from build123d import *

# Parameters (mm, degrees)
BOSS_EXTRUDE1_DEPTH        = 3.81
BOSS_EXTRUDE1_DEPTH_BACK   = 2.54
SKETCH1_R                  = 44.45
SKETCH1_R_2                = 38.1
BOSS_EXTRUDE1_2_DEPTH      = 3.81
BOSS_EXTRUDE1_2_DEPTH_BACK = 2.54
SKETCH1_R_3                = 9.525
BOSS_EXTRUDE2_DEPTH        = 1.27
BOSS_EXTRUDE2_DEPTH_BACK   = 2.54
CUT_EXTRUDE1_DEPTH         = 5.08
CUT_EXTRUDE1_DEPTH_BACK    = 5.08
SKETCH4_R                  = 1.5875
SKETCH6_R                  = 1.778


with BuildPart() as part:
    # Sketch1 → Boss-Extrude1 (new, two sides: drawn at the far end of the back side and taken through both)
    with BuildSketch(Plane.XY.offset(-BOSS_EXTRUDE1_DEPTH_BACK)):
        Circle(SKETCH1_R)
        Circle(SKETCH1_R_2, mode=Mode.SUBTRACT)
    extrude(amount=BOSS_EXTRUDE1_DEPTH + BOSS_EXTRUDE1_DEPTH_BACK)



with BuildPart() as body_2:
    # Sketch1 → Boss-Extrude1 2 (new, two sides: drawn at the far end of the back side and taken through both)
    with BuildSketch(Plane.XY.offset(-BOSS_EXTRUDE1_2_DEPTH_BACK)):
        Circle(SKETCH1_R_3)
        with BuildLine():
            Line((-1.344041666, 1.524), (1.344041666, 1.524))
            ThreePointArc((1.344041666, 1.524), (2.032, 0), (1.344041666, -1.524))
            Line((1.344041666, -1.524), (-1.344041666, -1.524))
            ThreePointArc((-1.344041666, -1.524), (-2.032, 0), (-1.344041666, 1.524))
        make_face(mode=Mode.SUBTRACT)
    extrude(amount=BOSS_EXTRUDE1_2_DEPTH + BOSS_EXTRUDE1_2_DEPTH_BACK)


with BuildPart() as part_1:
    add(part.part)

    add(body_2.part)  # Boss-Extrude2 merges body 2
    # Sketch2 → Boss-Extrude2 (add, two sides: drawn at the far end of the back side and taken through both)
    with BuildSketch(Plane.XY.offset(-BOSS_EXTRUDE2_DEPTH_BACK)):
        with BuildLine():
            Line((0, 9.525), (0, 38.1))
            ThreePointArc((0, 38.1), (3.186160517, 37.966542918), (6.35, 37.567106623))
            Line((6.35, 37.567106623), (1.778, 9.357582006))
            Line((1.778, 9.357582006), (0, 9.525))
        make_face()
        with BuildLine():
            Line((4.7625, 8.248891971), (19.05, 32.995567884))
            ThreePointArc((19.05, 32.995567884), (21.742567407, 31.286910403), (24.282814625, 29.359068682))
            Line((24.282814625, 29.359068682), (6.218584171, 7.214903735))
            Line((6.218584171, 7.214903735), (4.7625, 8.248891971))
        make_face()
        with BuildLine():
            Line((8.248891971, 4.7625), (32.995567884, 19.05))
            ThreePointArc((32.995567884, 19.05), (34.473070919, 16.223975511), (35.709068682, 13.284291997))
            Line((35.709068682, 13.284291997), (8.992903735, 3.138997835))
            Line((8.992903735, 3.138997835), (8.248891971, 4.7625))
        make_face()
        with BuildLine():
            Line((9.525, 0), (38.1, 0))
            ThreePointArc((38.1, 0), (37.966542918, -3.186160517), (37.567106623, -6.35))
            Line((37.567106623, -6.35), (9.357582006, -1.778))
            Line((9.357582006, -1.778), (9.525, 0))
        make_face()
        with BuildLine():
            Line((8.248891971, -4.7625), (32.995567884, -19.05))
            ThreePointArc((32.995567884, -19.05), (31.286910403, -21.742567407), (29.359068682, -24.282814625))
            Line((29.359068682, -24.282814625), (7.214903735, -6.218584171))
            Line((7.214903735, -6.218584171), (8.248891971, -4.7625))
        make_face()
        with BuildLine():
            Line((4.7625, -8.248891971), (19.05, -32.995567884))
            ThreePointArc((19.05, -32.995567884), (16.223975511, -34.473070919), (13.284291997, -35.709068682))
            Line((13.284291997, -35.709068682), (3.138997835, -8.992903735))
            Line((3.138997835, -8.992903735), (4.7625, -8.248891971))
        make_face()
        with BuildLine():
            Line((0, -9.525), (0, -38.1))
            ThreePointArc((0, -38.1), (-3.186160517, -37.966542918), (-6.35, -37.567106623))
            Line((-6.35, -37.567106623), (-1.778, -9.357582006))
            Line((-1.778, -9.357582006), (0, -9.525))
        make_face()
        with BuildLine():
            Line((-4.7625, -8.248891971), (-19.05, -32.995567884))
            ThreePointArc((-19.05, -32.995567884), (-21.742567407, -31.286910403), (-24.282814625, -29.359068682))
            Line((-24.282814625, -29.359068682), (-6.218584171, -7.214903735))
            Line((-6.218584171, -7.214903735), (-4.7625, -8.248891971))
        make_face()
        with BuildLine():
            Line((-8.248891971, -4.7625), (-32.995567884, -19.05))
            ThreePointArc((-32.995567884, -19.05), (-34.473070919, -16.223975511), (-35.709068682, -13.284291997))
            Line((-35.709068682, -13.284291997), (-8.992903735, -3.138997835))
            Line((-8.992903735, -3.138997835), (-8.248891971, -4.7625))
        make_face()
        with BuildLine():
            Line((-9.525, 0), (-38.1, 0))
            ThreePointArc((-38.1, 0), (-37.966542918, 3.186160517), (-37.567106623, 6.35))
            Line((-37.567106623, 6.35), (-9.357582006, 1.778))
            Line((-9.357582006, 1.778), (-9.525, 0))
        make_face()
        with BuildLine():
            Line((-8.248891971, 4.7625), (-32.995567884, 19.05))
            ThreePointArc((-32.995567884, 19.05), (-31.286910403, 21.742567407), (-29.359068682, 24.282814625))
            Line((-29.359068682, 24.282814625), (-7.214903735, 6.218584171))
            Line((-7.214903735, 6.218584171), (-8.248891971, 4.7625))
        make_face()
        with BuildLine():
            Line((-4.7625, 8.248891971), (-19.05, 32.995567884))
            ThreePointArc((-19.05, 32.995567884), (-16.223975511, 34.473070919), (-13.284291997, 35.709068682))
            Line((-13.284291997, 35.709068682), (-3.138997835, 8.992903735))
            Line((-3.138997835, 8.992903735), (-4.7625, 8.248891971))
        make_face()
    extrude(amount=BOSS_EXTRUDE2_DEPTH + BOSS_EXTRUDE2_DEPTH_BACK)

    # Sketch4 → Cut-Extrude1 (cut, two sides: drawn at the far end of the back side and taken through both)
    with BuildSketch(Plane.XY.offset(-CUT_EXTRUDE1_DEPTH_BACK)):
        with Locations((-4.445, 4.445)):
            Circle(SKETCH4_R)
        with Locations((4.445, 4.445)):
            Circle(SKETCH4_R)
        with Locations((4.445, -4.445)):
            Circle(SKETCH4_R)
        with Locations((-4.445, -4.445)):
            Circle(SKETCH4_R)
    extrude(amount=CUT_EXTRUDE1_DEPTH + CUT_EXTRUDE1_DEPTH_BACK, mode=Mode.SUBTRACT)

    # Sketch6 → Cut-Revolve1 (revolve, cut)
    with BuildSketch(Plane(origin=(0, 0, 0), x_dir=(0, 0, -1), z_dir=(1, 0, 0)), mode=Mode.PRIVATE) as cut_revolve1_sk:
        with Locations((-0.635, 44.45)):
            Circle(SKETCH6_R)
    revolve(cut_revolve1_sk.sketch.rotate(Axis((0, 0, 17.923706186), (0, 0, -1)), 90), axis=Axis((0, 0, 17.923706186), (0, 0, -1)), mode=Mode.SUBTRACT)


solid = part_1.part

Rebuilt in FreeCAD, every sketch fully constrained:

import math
import FreeCAD as App
import Part
import Sketcher
Q = App.Units.Quantity

doc = App.newDocument("Part")
params = doc.addObject("Spreadsheet::Sheet", "Params")
for row, (alias, value) in enumerate([
    ("sketch1_diameter", "3 in"),
    ("sketch1_diameter2", "3.5 in"),
    ("pad1_length", "0.15 in"),
    ("pad1_length2", "0.1 in"),
    ("sketch2_diameter", "0.75 in"),
    ("sketch2_radius", "0.08 in"),
    ("pad2_length", "0.15 in"),
    ("pad2_length2", "0.1 in"),
    ("sketch3_radius", "1.5 in"),
    ("sketch3_width", "1.125 in"),
    ("sketch3_length", "1.125 in"),
    ("pad3_length", "0.05 in"),
    ("pad3_length2", "0.1 in"),
    ("sketch4_diameter", "0.125 in"),
    ("sketch5_diameter", "0.14 in"),
    ("groove_angle", "360 deg"),
], start=1):
    params.set(f"A{row}", alias)
    params.set(f"B{row}", "=" + value)
    params.setAlias(f"B{row}", alias)

body = doc.addObject("PartDesign::Body", "Body")

sketch1 = body.newObject("Sketcher::SketchObject", "Sketch")
sketch1.AttachmentSupport = (doc.getObject("XY_Plane"), [""])
sketch1.MapMode = "FlatFace"
sketch1.addGeometry([
    Part.Circle(App.Vector(0, 0, 0), App.Vector(0, 0, 1), 44.45),
    Part.Circle(App.Vector(0, 0, 0), App.Vector(0, 0, 1), 38.1),
], False)
sketch1.addConstraint([
    Sketcher.Constraint("Coincident", 0, 3, -1, 1),
    Sketcher.Constraint("Coincident", 1, 3, -1, 1),
    Sketcher.Constraint("Diameter", 1, Q("3 in")),
    Sketcher.Constraint("Diameter", 0, Q("3.5 in")),
])
sketch1.setExpression("Constraints[2]", "Params.sketch1_diameter")
sketch1.setExpression("Constraints[3]", "Params.sketch1_diameter2")
pad1 = body.newObject("PartDesign::Pad", "Pad")
pad1.Profile = sketch1
pad1.Type = "TwoLengths"
pad1.setExpression("Length", "Params.pad1_length")
pad1.setExpression("Length2", "Params.pad1_length2")
body2 = doc.addObject("PartDesign::Body", "Body001")

sketch2 = body2.newObject("Sketcher::SketchObject", "Sketch001")
sketch2.AttachmentSupport = (doc.getObject("XY_Plane001"), [""])
sketch2.MapMode = "FlatFace"
sketch2.addGeometry([
    Part.Circle(App.Vector(0, 0, 0), App.Vector(0, 0, 1), 9.525),
    Part.ArcOfCircle(Part.Circle(App.Vector(0, 0, 0), App.Vector(0, 0, 1), 2.032), math.radians(131.409622), math.radians(228.590378)),
    Part.LineSegment(App.Vector(-1.344042, 1.524, 0), App.Vector(1.344042, 1.524, 0)),
    Part.ArcOfCircle(Part.Circle(App.Vector(0, 0, 0), App.Vector(0, 0, 1), 2.032), math.radians(-48.590378), math.radians(48.590378)),
    Part.LineSegment(App.Vector(1.344042, -1.524, 0), App.Vector(-1.344042, -1.524, 0)),
], False)
sketch2.addConstraint([
    Sketcher.Constraint("Coincident", 1, 1, 2, 1),
    Sketcher.Constraint("Coincident", 2, 2, 3, 2),
    Sketcher.Constraint("Coincident", 3, 1, 4, 1),
    Sketcher.Constraint("Coincident", 4, 2, 1, 2),
    Sketcher.Constraint("Horizontal", 2),
    Sketcher.Constraint("Horizontal", 4),
    Sketcher.Constraint("Coincident", 0, 3, -1, 1),
    Sketcher.Constraint("Coincident", 1, 3, -1, 1),
    Sketcher.Constraint("Coincident", 3, 3, -1, 1),
    Sketcher.Constraint("Equal", 1, 3),
    Sketcher.Constraint("Vertical", 2, 2, 3, 1),
    Sketcher.Constraint("Diameter", 0, Q("0.75 in")),
    Sketcher.Constraint("Radius", 1, Q("0.08 in")),
    Sketcher.Constraint("DistanceY", -1, 1, 1, 1, Q("0.06 in")),
])
sketch2.setExpression("Constraints[11]", "Params.sketch2_diameter")
sketch2.setExpression("Constraints[12]", "Params.sketch2_radius")
pad2 = body2.newObject("PartDesign::Pad", "Pad001")
pad2.Profile = sketch2
pad2.Type = "TwoLengths"
pad2.setExpression("Length", "Params.pad2_length")
pad2.setExpression("Length2", "Params.pad2_length2")
body.AllowCompound = True
doc.recompute()

boolean = body.newObject("PartDesign::Boolean", "Boolean")
boolean.Type = "Fuse"
boolean.addObjects([body2])

sketch3 = body.newObject("Sketcher::SketchObject", "Sketch002")
sketch3.AttachmentSupport = (doc.getObject("XY_Plane"), [""])
sketch3.MapMode = "FlatFace"
sketch3.addGeometry([
    Part.LineSegment(App.Vector(0, 38.1, 0), App.Vector(0, 9.525, 0)),
    Part.LineSegment(App.Vector(0, 9.525, 0), App.Vector(1.778, 9.357582, 0)),
    Part.LineSegment(App.Vector(1.778, 9.357582, 0), App.Vector(6.35, 37.567107, 0)),
    Part.ArcOfCircle(Part.Circle(App.Vector(0, 0, 0), App.Vector(0, 0, 1), 38.1), math.radians(80.405932), math.radians(90)),
    Part.LineSegment(App.Vector(19.05, 32.995568, 0), App.Vector(4.7625, 8.248892, 0)),
    Part.LineSegment(App.Vector(4.7625, 8.248892, 0), App.Vector(6.218584, 7.214904, 0)),
    Part.LineSegment(App.Vector(6.218584, 7.214904, 0), App.Vector(24.282815, 29.359069, 0)),
    Part.ArcOfCircle(Part.Circle(App.Vector(0, 0, 0), App.Vector(0, 0, 1), 38.1), math.radians(50.405932), math.radians(60)),
    Part.LineSegment(App.Vector(32.995568, 19.05, 0), App.Vector(8.248892, 4.7625, 0)),
    Part.LineSegment(App.Vector(8.248892, 4.7625, 0), App.Vector(8.992904, 3.138998, 0)),
    Part.LineSegment(App.Vector(8.992904, 3.138998, 0), App.Vector(35.709069, 13.284292, 0)),
    Part.ArcOfCircle(Part.Circle(App.Vector(0, 0, 0), App.Vector(0, 0, 1), 38.1), math.radians(20.405932), math.radians(30)),
    Part.LineSegment(App.Vector(38.1, 0, 0), App.Vector(9.525, 0, 0)),
    Part.LineSegment(App.Vector(9.525, 0, 0), App.Vector(9.357582, -1.778, 0)),
    Part.LineSegment(App.Vector(9.357582, -1.778, 0), App.Vector(37.567107, -6.35, 0)),
    Part.ArcOfCircle(Part.Circle(App.Vector(0, 0, 0), App.Vector(0, 0, 1), 38.1), math.radians(-9.594068), math.radians(0)),
    Part.LineSegment(App.Vector(32.995568, -19.05, 0), App.Vector(8.248892, -4.7625, 0)),
    Part.LineSegment(App.Vector(8.248892, -4.7625, 0), App.Vector(7.214904, -6.218584, 0)),
    Part.LineSegment(App.Vector(7.214904, -6.218584, 0), App.Vector(29.359069, -24.282815, 0)),
    Part.ArcOfCircle(Part.Circle(App.Vector(0, 0, 0), App.Vector(0, 0, 1), 38.1), math.radians(-39.594068), math.radians(-30)),
    Part.LineSegment(App.Vector(19.05, -32.995568, 0), App.Vector(4.7625, -8.248892, 0)),
    Part.LineSegment(App.Vector(4.7625, -8.248892, 0), App.Vector(3.138998, -8.992904, 0)),
    Part.LineSegment(App.Vector(3.138998, -8.992904, 0), App.Vector(13.284292, -35.709069, 0)),
    Part.ArcOfCircle(Part.Circle(App.Vector(0, 0, 0), App.Vector(0, 0, 1), 38.1), math.radians(-69.594068), math.radians(-60)),
    Part.LineSegment(App.Vector(0, -38.1, 0), App.Vector(0, -9.525, 0)),
    Part.LineSegment(App.Vector(0, -9.525, 0), App.Vector(-1.778, -9.357582, 0)),
    Part.LineSegment(App.Vector(-1.778, -9.357582, 0), App.Vector(-6.35, -37.567107, 0)),
    Part.ArcOfCircle(Part.Circle(App.Vector(0, 0, 0), App.Vector(0, 0, 1), 38.1), math.radians(-99.594068), math.radians(-90)),
    Part.LineSegment(App.Vector(-19.05, -32.995568, 0), App.Vector(-4.7625, -8.248892, 0)),
    Part.LineSegment(App.Vector(-4.7625, -8.248892, 0), App.Vector(-6.218584, -7.214904, 0)),
    Part.LineSegment(App.Vector(-6.218584, -7.214904, 0), App.Vector(-24.282815, -29.359069, 0)),
    Part.ArcOfCircle(Part.Circle(App.Vector(0, 0, 0), App.Vector(0, 0, 1), 38.1), math.radians(-129.594068), math.radians(-120)),
    Part.LineSegment(App.Vector(-32.995568, -19.05, 0), App.Vector(-8.248892, -4.7625, 0)),
    Part.LineSegment(App.Vector(-8.248892, -4.7625, 0), App.Vector(-8.992904, -3.138998, 0)),
    Part.LineSegment(App.Vector(-8.992904, -3.138998, 0), App.Vector(-35.709069, -13.284292, 0)),
    Part.ArcOfCircle(Part.Circle(App.Vector(0, 0, 0), App.Vector(0, 0, 1), 38.1), math.radians(-159.594068), math.radians(-150)),
    Part.LineSegment(App.Vector(-38.1, 0, 0), App.Vector(-9.525, 0, 0)),
    Part.LineSegment(App.Vector(-9.525, 0, 0), App.Vector(-9.357582, 1.778, 0)),
    Part.LineSegment(App.Vector(-9.357582, 1.778, 0), App.Vector(-37.567107, 6.35, 0)),
    Part.ArcOfCircle(Part.Circle(App.Vector(0, 0, 0), App.Vector(0, 0, 1), 38.1), math.radians(170.405932), math.radians(180)),
    Part.LineSegment(App.Vector(-32.995568, 19.05, 0), App.Vector(-8.248892, 4.7625, 0)),
    Part.LineSegment(App.Vector(-8.248892, 4.7625, 0), App.Vector(-7.214904, 6.218584, 0)),
    Part.LineSegment(App.Vector(-7.214904, 6.218584, 0), App.Vector(-29.359069, 24.282815, 0)),
    Part.ArcOfCircle(Part.Circle(App.Vector(0, 0, 0), App.Vector(0, 0, 1), 38.1), math.radians(140.405932), math.radians(150)),
    Part.LineSegment(App.Vector(-19.05, 32.995568, 0), App.Vector(-4.7625, 8.248892, 0)),
    Part.LineSegment(App.Vector(-4.7625, 8.248892, 0), App.Vector(-3.138998, 8.992904, 0)),
    Part.LineSegment(App.Vector(-3.138998, 8.992904, 0), App.Vector(-13.284292, 35.709069, 0)),
    Part.ArcOfCircle(Part.Circle(App.Vector(0, 0, 0), App.Vector(0, 0, 1), 38.1), math.radians(110.405932), math.radians(120)),
], False)
sketch3.addConstraint([
    Sketcher.Constraint("Coincident", 0, 2, 1, 1),
    Sketcher.Constraint("Coincident", 1, 2, 2, 1),
    Sketcher.Constraint("Coincident", 2, 2, 3, 1),
    Sketcher.Constraint("Coincident", 3, 2, 0, 1),
    Sketcher.Constraint("Coincident", 4, 2, 5, 1),
    Sketcher.Constraint("Coincident", 5, 2, 6, 1),
    Sketcher.Constraint("Coincident", 6, 2, 7, 1),
    Sketcher.Constraint("Coincident", 7, 2, 4, 1),
    Sketcher.Constraint("Coincident", 8, 2, 9, 1),
    Sketcher.Constraint("Coincident", 9, 2, 10, 1),
    Sketcher.Constraint("Coincident", 10, 2, 11, 1),
    Sketcher.Constraint("Coincident", 11, 2, 8, 1),
    Sketcher.Constraint("Coincident", 12, 2, 13, 1),
    Sketcher.Constraint("Coincident", 13, 2, 14, 1),
    Sketcher.Constraint("Coincident", 14, 2, 15, 1),
    Sketcher.Constraint("Coincident", 15, 2, 12, 1),
    Sketcher.Constraint("Coincident", 16, 2, 17, 1),
    Sketcher.Constraint("Coincident", 17, 2, 18, 1),
    Sketcher.Constraint("Coincident", 18, 2, 19, 1),
    Sketcher.Constraint("Coincident", 19, 2, 16, 1),
    Sketcher.Constraint("Coincident", 20, 2, 21, 1),
    Sketcher.Constraint("Coincident", 21, 2, 22, 1),
    Sketcher.Constraint("Coincident", 22, 2, 23, 1),
    Sketcher.Constraint("Coincident", 23, 2, 20, 1),
    Sketcher.Constraint("Coincident", 24, 2, 25, 1),
    Sketcher.Constraint("Coincident", 25, 2, 26, 1),
    Sketcher.Constraint("Coincident", 26, 2, 27, 1),
    Sketcher.Constraint("Coincident", 27, 2, 24, 1),
    Sketcher.Constraint("Coincident", 28, 2, 29, 1),
    Sketcher.Constraint("Coincident", 29, 2, 30, 1),
    Sketcher.Constraint("Coincident", 30, 2, 31, 1),
    Sketcher.Constraint("Coincident", 31, 2, 28, 1),
    Sketcher.Constraint("Coincident", 32, 2, 33, 1),
    Sketcher.Constraint("Coincident", 33, 2, 34, 1),
    Sketcher.Constraint("Coincident", 34, 2, 35, 1),
    Sketcher.Constraint("Coincident", 35, 2, 32, 1),
    Sketcher.Constraint("Coincident", 36, 2, 37, 1),
    Sketcher.Constraint("Coincident", 37, 2, 38, 1),
    Sketcher.Constraint("Coincident", 38, 2, 39, 1),
    Sketcher.Constraint("Coincident", 39, 2, 36, 1),
    Sketcher.Constraint("Coincident", 40, 2, 41, 1),
    Sketcher.Constraint("Coincident", 41, 2, 42, 1),
    Sketcher.Constraint("Coincident", 42, 2, 43, 1),
    Sketcher.Constraint("Coincident", 43, 2, 40, 1),
    Sketcher.Constraint("Coincident", 44, 2, 45, 1),
    Sketcher.Constraint("Coincident", 45, 2, 46, 1),
    Sketcher.Constraint("Coincident", 46, 2, 47, 1),
    Sketcher.Constraint("Coincident", 47, 2, 44, 1),
    Sketcher.Constraint("Vertical", 0),
    Sketcher.Constraint("Horizontal", 12),
    Sketcher.Constraint("Vertical", 24),
    Sketcher.Constraint("Horizontal", 36),
    Sketcher.Constraint("Coincident", 3, 3, -1, 1),
    Sketcher.Constraint("Coincident", 7, 3, -1, 1),
    Sketcher.Constraint("Coincident", 11, 3, -1, 1),
    Sketcher.Constraint("Coincident", 15, 3, -1, 1),
    Sketcher.Constraint("Coincident", 19, 3, -1, 1),
    Sketcher.Constraint("Coincident", 23, 3, -1, 1),
    Sketcher.Constraint("Coincident", 27, 3, -1, 1),
    Sketcher.Constraint("Coincident", 31, 3, -1, 1),
    Sketcher.Constraint("Coincident", 35, 3, -1, 1),
    Sketcher.Constraint("Coincident", 39, 3, -1, 1),
    Sketcher.Constraint("Coincident", 43, 3, -1, 1),
    Sketcher.Constraint("Coincident", 47, 3, -1, 1),
    Sketcher.Constraint("Equal", 3, 7),
    Sketcher.Constraint("Equal", 7, 11),
    Sketcher.Constraint("Equal", 11, 15),
    Sketcher.Constraint("Equal", 15, 19),
    Sketcher.Constraint("Equal", 19, 23),
    Sketcher.Constraint("Equal", 23, 27),
    Sketcher.Constraint("Equal", 27, 31),
    Sketcher.Constraint("Equal", 31, 35),
    Sketcher.Constraint("Equal", 35, 39),
    Sketcher.Constraint("Equal", 39, 43),
    Sketcher.Constraint("Equal", 43, 47),
    Sketcher.Constraint("Symmetric", 0, 2, 24, 2, -1, 1),
    Sketcher.Constraint("Symmetric", 1, 2, 25, 2, -1, 1),
    Sketcher.Constraint("Symmetric", 4, 2, 28, 2, -1, 1),
    Sketcher.Constraint("Symmetric", 5, 2, 29, 2, -1, 1),
    Sketcher.Constraint("Symmetric", 8, 2, 32, 2, -1, 1),
    Sketcher.Constraint("Symmetric", 9, 2, 33, 2, -1, 1),
    Sketcher.Constraint("Symmetric", 12, 2, 36, 2, -1, 1),
    Sketcher.Constraint("Symmetric", 13, 2, 37, 2, -1, 1),
    Sketcher.Constraint("Symmetric", 16, 2, 40, 2, -1, 1),
    Sketcher.Constraint("Symmetric", 17, 2, 41, 2, -1, 1),
    Sketcher.Constraint("Symmetric", 20, 2, 44, 2, -1, 1),
    Sketcher.Constraint("Symmetric", 21, 2, 45, 2, -1, 1),
    Sketcher.Constraint("Symmetric", 20, 2, 28, 2, -2),
    Sketcher.Constraint("Symmetric", 16, 2, 32, 2, -2),
    Sketcher.Constraint("PointOnObject", 0, 2, -2),
    Sketcher.Constraint("PointOnObject", 12, 2, -1),
    Sketcher.Constraint("Perpendicular", 1, 13),
    Sketcher.Constraint("Perpendicular", 2, 14),
    Sketcher.Constraint("Perpendicular", 4, 16),
    Sketcher.Constraint("Perpendicular", 5, 17),
    Sketcher.Constraint("Perpendicular", 6, 18),
    Sketcher.Constraint("Perpendicular", 8, 20),
    Sketcher.Constraint("Perpendicular", 9, 21),
    Sketcher.Constraint("Perpendicular", 10, 22),
    Sketcher.Constraint("Perpendicular", 14, 26),
    Sketcher.Constraint("Perpendicular", 16, 28),
    Sketcher.Constraint("Perpendicular", 18, 30),
    Sketcher.Constraint("Perpendicular", 20, 32),
    Sketcher.Constraint("Perpendicular", 22, 34),
    Sketcher.Constraint("Perpendicular", 26, 38),
    Sketcher.Constraint("Perpendicular", 28, 40),
    Sketcher.Constraint("Perpendicular", 30, 42),
    Sketcher.Constraint("Perpendicular", 32, 44),
    Sketcher.Constraint("Perpendicular", 34, 46),
    Sketcher.Constraint("Horizontal", 23, 2, 31, 2),
    Sketcher.Constraint("Equal", 36, 0),
    Sketcher.Constraint("Equal", 1, 5),
    Sketcher.Constraint("Equal", 2, 6),
    Sketcher.Constraint("Equal", 4, 8),
    Sketcher.Constraint("Equal", 5, 9),
    Sketcher.Constraint("Equal", 6, 10),
    Sketcher.Constraint("Equal", 9, 13),
    Sketcher.Constraint("Equal", 13, 17),
    Sketcher.Constraint("Equal", 14, 18),
    Sketcher.Constraint("Equal", 17, 21),
    Sketcher.Constraint("Radius", 3, Q("1.5 in")),
    Sketcher.Constraint("Angle", 4, Q("-120 deg")),
    Sketcher.Constraint("DistanceY", 14, 2, 11, 2, Q("1 in")),
    Sketcher.Constraint("DistanceX", 2, 2, 7, 2, Q("0.5 in")),
    Sketcher.Constraint("DistanceX", 12, 2, 12, 1, Q("1.125 in")),
    Sketcher.Constraint("DistanceX", -1, 1, 1, 2, Q("0.07 in")),
    Sketcher.Constraint("Distance", 4, Q("1.125 in")),
    Sketcher.Constraint("DistanceY", 6, 2, 7, 2, 3.636499),
    Sketcher.Constraint("DistanceX", 11, 2, 10, 2, 2.713501),
    Sketcher.Constraint("Distance", 2, 28.577622),
])
sketch3.setExpression("Constraints[120]", "Params.sketch3_radius")
sketch3.setExpression("Constraints[124]", "Params.sketch3_width")
sketch3.setExpression("Constraints[126]", "Params.sketch3_length")
pad3 = body.newObject("PartDesign::Pad", "Pad002")
pad3.Profile = sketch3
pad3.Type = "TwoLengths"
pad3.setExpression("Length", "Params.pad3_length")
pad3.setExpression("Length2", "Params.pad3_length2")

sketch4 = body.newObject("Sketcher::SketchObject", "Sketch003")
sketch4.AttachmentSupport = (doc.getObject("XY_Plane"), [""])
sketch4.MapMode = "FlatFace"
sketch4.addGeometry([
    Part.Circle(App.Vector(-4.445, 4.445, 0), App.Vector(0, 0, 1), 1.5875),
    Part.Circle(App.Vector(4.445, 4.445, 0), App.Vector(0, 0, 1), 1.5875),
    Part.Circle(App.Vector(4.445, -4.445, 0), App.Vector(0, 0, 1), 1.5875),
    Part.Circle(App.Vector(-4.445, -4.445, 0), App.Vector(0, 0, 1), 1.5875),
], False)
sketch4.addConstraint([
    Sketcher.Constraint("Equal", 0, 1),
    Sketcher.Constraint("Equal", 1, 2),
    Sketcher.Constraint("Equal", 2, 3),
    Sketcher.Constraint("Symmetric", 0, 3, 2, 3, -1, 1),
    Sketcher.Constraint("Symmetric", 1, 3, 3, 3, -1, 1),
    Sketcher.Constraint("Symmetric", 0, 3, 1, 3, -2),
    Sketcher.Constraint("Diameter", 0, Q("0.125 in")),
    Sketcher.Constraint("DistanceX", 0, 3, 1, 3, Q("0.35 in")),
    Sketcher.Constraint("DistanceY", 2, 3, 1, 3, Q("0.35 in")),
])
sketch4.setExpression("Constraints[6]", "Params.sketch4_diameter")
pocket1 = body.newObject("PartDesign::Pocket", "Pocket")
pocket1.Profile = sketch4
pocket1.Type = "ThroughAll"
pocket1.Midplane = True

sketch5 = body.newObject("Sketcher::SketchObject", "Sketch004")
sketch5.AttachmentSupport = (doc.getObject("YZ_Plane"), [""])
sketch5.MapMode = "FlatFace"
sketch5.addGeometry(Part.Circle(App.Vector(44.45, 0.635, 0), App.Vector(0, 0, 1), 1.778), False)
sketch5.addConstraint([
    Sketcher.Constraint("Diameter", 0, Q("0.14 in")),
    Sketcher.Constraint("DistanceX", -1, 1, 0, 3, Q("1.75 in")),
    Sketcher.Constraint("DistanceY", -1, 1, 0, 3, Q("0.025 in")),
])
sketch5.setExpression("Constraints[0]", "Params.sketch5_diameter")
groove = body.newObject("PartDesign::Groove", "Groove")
groove.Profile = sketch5
groove.ReferenceAxis = (sketch5, ["V_Axis"])
groove.setExpression("Angle", "Params.groove_angle")

doc.recompute()
